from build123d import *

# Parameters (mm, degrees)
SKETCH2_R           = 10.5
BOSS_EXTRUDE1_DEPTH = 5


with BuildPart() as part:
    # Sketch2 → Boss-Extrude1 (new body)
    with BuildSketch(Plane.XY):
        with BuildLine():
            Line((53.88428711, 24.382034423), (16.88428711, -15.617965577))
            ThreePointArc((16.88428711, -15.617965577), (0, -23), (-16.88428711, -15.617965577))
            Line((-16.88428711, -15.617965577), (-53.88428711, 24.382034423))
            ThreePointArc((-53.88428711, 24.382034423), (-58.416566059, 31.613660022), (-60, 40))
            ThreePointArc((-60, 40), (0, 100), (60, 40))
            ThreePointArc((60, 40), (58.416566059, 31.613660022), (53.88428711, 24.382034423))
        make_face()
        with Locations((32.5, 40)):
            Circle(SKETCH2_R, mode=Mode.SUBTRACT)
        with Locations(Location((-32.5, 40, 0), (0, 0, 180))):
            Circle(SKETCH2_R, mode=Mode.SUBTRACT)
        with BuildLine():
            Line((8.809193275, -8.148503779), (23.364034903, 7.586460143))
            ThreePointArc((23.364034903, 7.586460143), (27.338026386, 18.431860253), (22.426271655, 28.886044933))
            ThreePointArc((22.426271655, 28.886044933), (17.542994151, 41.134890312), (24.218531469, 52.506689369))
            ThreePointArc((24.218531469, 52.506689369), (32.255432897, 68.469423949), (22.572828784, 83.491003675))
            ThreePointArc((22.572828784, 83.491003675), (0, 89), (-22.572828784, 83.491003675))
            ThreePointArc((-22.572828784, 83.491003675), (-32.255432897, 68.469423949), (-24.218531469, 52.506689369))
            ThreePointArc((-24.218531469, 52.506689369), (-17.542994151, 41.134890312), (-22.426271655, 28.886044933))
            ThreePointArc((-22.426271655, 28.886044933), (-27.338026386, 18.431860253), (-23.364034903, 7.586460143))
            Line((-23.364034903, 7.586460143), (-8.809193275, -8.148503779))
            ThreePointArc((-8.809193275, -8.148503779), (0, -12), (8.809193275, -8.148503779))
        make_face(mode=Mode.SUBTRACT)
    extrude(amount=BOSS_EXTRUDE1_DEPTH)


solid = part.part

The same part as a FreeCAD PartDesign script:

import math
import FreeCAD as App
import Part
import Sketcher

doc = App.newDocument("Part")
body = doc.addObject("PartDesign::Body", "Body")

# Sketch on XY plane
sketch1 = doc.addObject("Sketcher::SketchObject", "Sketch")
body.addObject(sketch1)
sketch1.AttachmentSupport = (doc.XY_Plane, [""])
sketch1.MapMode = "FlatFace"
sketch1.addGeometry(Part.LineSegment(App.Vector(17, -16, 0), App.Vector(54, 24, 0)), False)
sketch1.addGeometry(Part.ArcOfCircle(Part.Circle(App.Vector(37, 40, 0), App.Vector(0, 0, 1), 23), math.radians(-43), math.radians(0)), False)
sketch1.addGeometry(Part.ArcOfCircle(Part.Circle(App.Vector(0, 40, 0), App.Vector(0, 0, 1), 60), math.radians(0), math.radians(180)), False)
sketch1.addGeometry(Part.ArcOfCircle(Part.Circle(App.Vector(-37, 40, 0), App.Vector(0, 0, 1), 23), math.radians(-180), math.radians(-137)), False)
sketch1.addGeometry(Part.LineSegment(App.Vector(-54, 24, 0), App.Vector(-17, -16, 0)), False)
sketch1.addGeometry(Part.ArcOfCircle(Part.Circle(App.Vector(0, 0, 0), App.Vector(0, 0, 1), 23), math.radians(-137), math.radians(-43)), False)
sketch1.addGeometry(Part.Circle(App.Vector(32, 40, 0), App.Vector(0, 0, 1), 10), False)
sketch1.addGeometry(Part.ArcOfCircle(Part.Circle(App.Vector(0, 0, 0), App.Vector(0, 0, 1), 12), math.radians(-137), math.radians(-43)), False)
sketch1.addGeometry(Part.LineSegment(App.Vector(-9, -8, 0), App.Vector(-23, 8, 0)), False)
sketch1.addGeometry(Part.ArcOfCircle(Part.Circle(App.Vector(-12, 18, 0), App.Vector(0, 0, 1), 15), math.radians(132), math.radians(223)), False)
sketch1.addGeometry(Part.ArcOfCircle(Part.Circle(App.Vector(-33, 40, 0), App.Vector(0, 0, 1), 15), math.radians(-48), math.radians(56)), False)
sketch1.addGeometry(Part.ArcOfCircle(Part.Circle(App.Vector(-14, 68, 0), App.Vector(0, 0, 1), 18), math.radians(117), math.radians(236)), False)
sketch1.addGeometry(Part.ArcOfCircle(Part.Circle(App.Vector(0, 40, 0), App.Vector(0, 0, 1), 49), math.radians(63), math.radians(117)), False)
sketch1.addGeometry(Part.ArcOfCircle(Part.Circle(App.Vector(14, 68, 0), App.Vector(0, 0, 1), 18), math.radians(-56), math.radians(63)), False)
sketch1.addGeometry(Part.ArcOfCircle(Part.Circle(App.Vector(33, 40, 0), App.Vector(0, 0, 1), 15), math.radians(124), math.radians(228)), False)
sketch1.addGeometry(Part.ArcOfCircle(Part.Circle(App.Vector(12, 18, 0), App.Vector(0, 0, 1), 15), math.radians(-43), math.radians(48)), False)
sketch1.addGeometry(Part.LineSegment(App.Vector(23, 8, 0), App.Vector(9, -8, 0)), False)
sketch1.addGeometry(Part.Circle(App.Vector(-32, 40, 0), App.Vector(0, 0, 1), 10), False)
sketch1.addConstraint(Sketcher.Constraint("Tangent", 0, 2, 1, 1))
sketch1.addConstraint(Sketcher.Constraint("Tangent", 1, 2, 2, 1))
sketch1.addConstraint(Sketcher.Constraint("Tangent", 2, 2, 3, 1))
sketch1.addConstraint(Sketcher.Constraint("Tangent", 3, 2, 4, 1))
sketch1.addConstraint(Sketcher.Constraint("Tangent", 4, 2, 5, 1))
sketch1.addConstraint(Sketcher.Constraint("Tangent", 5, 2, 0, 1))
sketch1.addConstraint(Sketcher.Constraint("Tangent", 7, 1, 8, 1))
sketch1.addConstraint(Sketcher.Constraint("Tangent", 8, 2, 9, 2))
sketch1.addConstraint(Sketcher.Constraint("Tangent", 9, 1, 10, 1))
sketch1.addConstraint(Sketcher.Constraint("Tangent", 10, 2, 11, 2))
sketch1.addConstraint(Sketcher.Constraint("Tangent", 11, 1, 12, 2))
sketch1.addConstraint(Sketcher.Constraint("Tangent", 12, 1, 13, 2))
sketch1.addConstraint(Sketcher.Constraint("Tangent", 13, 1, 14, 1))
sketch1.addConstraint(Sketcher.Constraint("Tangent", 14, 2, 15, 2))
sketch1.addConstraint(Sketcher.Constraint("Tangent", 15, 1, 16, 1))
sketch1.addConstraint(Sketcher.Constraint("Tangent", 16, 2, 7, 2))
sketch1.addConstraint(Sketcher.Constraint("Coincident", 5, 3, -1, 1))
sketch1.addConstraint(Sketcher.Constraint("Coincident", 7, 3, -1, 1))
sketch1.addConstraint(Sketcher.Constraint("Coincident", 12, 3, 2, 3))
sketch1.addConstraint(Sketcher.Constraint("Coincident", 14, 3, 6, 3))
sketch1.addConstraint(Sketcher.Constraint("Coincident", 17, 3, 10, 3))
sketch1.addConstraint(Sketcher.Constraint("Equal", 1, 3))
sketch1.addConstraint(Sketcher.Constraint("Equal", 3, 5))
sketch1.addConstraint(Sketcher.Constraint("Equal", 9, 10))
sketch1.addConstraint(Sketcher.Constraint("Equal", 11, 13))
sketch1.addConstraint(Sketcher.Constraint("Equal", 10, 14))
sketch1.addConstraint(Sketcher.Constraint("Equal", 14, 15))
sketch1.addConstraint(Sketcher.Constraint("Equal", 6, 17))
sketch1.addConstraint(Sketcher.Constraint("Symmetric", 1, 3, 3, 3, -2))
sketch1.addConstraint(Sketcher.Constraint("Symmetric", 6, 3, 10, 3, -2))
sketch1.addConstraint(Sketcher.Constraint("Parallel", 4, 8))
sketch1.addConstraint(Sketcher.Constraint("Parallel", 0, 16))
sketch1.addConstraint(Sketcher.Constraint("Horizontal", 1, 3, 2, 3))
sketch1.addConstraint(Sketcher.Constraint("Horizontal", 3, 3, 6, 3))
sketch1.addConstraint(Sketcher.Constraint("Diameter", 6, 21.0))
sketch1.addConstraint(Sketcher.Constraint("Radius", 1, 23.0))
sketch1.addConstraint(Sketcher.Constraint("Radius", 2, 60.0))
sketch1.addConstraint(Sketcher.Constraint("Radius", 7, 12.0))
sketch1.addConstraint(Sketcher.Constraint("Radius", 9, 15.0))
sketch1.addConstraint(Sketcher.Constraint("Radius", 11, 18.0))
sketch1.addConstraint(Sketcher.Constraint("Radius", 12, 49.0))
sketch1.addConstraint(Sketcher.Constraint("DistanceY", -1, 1, 1, 3, 40.0))
sketch1.addConstraint(Sketcher.Constraint("DistanceX", -1, 1, 6, 3, 32.5))
pad1 = doc.addObject("PartDesign::Pad", "Pad")
body.addObject(pad1)
pad1.Profile = sketch1
pad1.Length = 5

doc.recompute()
